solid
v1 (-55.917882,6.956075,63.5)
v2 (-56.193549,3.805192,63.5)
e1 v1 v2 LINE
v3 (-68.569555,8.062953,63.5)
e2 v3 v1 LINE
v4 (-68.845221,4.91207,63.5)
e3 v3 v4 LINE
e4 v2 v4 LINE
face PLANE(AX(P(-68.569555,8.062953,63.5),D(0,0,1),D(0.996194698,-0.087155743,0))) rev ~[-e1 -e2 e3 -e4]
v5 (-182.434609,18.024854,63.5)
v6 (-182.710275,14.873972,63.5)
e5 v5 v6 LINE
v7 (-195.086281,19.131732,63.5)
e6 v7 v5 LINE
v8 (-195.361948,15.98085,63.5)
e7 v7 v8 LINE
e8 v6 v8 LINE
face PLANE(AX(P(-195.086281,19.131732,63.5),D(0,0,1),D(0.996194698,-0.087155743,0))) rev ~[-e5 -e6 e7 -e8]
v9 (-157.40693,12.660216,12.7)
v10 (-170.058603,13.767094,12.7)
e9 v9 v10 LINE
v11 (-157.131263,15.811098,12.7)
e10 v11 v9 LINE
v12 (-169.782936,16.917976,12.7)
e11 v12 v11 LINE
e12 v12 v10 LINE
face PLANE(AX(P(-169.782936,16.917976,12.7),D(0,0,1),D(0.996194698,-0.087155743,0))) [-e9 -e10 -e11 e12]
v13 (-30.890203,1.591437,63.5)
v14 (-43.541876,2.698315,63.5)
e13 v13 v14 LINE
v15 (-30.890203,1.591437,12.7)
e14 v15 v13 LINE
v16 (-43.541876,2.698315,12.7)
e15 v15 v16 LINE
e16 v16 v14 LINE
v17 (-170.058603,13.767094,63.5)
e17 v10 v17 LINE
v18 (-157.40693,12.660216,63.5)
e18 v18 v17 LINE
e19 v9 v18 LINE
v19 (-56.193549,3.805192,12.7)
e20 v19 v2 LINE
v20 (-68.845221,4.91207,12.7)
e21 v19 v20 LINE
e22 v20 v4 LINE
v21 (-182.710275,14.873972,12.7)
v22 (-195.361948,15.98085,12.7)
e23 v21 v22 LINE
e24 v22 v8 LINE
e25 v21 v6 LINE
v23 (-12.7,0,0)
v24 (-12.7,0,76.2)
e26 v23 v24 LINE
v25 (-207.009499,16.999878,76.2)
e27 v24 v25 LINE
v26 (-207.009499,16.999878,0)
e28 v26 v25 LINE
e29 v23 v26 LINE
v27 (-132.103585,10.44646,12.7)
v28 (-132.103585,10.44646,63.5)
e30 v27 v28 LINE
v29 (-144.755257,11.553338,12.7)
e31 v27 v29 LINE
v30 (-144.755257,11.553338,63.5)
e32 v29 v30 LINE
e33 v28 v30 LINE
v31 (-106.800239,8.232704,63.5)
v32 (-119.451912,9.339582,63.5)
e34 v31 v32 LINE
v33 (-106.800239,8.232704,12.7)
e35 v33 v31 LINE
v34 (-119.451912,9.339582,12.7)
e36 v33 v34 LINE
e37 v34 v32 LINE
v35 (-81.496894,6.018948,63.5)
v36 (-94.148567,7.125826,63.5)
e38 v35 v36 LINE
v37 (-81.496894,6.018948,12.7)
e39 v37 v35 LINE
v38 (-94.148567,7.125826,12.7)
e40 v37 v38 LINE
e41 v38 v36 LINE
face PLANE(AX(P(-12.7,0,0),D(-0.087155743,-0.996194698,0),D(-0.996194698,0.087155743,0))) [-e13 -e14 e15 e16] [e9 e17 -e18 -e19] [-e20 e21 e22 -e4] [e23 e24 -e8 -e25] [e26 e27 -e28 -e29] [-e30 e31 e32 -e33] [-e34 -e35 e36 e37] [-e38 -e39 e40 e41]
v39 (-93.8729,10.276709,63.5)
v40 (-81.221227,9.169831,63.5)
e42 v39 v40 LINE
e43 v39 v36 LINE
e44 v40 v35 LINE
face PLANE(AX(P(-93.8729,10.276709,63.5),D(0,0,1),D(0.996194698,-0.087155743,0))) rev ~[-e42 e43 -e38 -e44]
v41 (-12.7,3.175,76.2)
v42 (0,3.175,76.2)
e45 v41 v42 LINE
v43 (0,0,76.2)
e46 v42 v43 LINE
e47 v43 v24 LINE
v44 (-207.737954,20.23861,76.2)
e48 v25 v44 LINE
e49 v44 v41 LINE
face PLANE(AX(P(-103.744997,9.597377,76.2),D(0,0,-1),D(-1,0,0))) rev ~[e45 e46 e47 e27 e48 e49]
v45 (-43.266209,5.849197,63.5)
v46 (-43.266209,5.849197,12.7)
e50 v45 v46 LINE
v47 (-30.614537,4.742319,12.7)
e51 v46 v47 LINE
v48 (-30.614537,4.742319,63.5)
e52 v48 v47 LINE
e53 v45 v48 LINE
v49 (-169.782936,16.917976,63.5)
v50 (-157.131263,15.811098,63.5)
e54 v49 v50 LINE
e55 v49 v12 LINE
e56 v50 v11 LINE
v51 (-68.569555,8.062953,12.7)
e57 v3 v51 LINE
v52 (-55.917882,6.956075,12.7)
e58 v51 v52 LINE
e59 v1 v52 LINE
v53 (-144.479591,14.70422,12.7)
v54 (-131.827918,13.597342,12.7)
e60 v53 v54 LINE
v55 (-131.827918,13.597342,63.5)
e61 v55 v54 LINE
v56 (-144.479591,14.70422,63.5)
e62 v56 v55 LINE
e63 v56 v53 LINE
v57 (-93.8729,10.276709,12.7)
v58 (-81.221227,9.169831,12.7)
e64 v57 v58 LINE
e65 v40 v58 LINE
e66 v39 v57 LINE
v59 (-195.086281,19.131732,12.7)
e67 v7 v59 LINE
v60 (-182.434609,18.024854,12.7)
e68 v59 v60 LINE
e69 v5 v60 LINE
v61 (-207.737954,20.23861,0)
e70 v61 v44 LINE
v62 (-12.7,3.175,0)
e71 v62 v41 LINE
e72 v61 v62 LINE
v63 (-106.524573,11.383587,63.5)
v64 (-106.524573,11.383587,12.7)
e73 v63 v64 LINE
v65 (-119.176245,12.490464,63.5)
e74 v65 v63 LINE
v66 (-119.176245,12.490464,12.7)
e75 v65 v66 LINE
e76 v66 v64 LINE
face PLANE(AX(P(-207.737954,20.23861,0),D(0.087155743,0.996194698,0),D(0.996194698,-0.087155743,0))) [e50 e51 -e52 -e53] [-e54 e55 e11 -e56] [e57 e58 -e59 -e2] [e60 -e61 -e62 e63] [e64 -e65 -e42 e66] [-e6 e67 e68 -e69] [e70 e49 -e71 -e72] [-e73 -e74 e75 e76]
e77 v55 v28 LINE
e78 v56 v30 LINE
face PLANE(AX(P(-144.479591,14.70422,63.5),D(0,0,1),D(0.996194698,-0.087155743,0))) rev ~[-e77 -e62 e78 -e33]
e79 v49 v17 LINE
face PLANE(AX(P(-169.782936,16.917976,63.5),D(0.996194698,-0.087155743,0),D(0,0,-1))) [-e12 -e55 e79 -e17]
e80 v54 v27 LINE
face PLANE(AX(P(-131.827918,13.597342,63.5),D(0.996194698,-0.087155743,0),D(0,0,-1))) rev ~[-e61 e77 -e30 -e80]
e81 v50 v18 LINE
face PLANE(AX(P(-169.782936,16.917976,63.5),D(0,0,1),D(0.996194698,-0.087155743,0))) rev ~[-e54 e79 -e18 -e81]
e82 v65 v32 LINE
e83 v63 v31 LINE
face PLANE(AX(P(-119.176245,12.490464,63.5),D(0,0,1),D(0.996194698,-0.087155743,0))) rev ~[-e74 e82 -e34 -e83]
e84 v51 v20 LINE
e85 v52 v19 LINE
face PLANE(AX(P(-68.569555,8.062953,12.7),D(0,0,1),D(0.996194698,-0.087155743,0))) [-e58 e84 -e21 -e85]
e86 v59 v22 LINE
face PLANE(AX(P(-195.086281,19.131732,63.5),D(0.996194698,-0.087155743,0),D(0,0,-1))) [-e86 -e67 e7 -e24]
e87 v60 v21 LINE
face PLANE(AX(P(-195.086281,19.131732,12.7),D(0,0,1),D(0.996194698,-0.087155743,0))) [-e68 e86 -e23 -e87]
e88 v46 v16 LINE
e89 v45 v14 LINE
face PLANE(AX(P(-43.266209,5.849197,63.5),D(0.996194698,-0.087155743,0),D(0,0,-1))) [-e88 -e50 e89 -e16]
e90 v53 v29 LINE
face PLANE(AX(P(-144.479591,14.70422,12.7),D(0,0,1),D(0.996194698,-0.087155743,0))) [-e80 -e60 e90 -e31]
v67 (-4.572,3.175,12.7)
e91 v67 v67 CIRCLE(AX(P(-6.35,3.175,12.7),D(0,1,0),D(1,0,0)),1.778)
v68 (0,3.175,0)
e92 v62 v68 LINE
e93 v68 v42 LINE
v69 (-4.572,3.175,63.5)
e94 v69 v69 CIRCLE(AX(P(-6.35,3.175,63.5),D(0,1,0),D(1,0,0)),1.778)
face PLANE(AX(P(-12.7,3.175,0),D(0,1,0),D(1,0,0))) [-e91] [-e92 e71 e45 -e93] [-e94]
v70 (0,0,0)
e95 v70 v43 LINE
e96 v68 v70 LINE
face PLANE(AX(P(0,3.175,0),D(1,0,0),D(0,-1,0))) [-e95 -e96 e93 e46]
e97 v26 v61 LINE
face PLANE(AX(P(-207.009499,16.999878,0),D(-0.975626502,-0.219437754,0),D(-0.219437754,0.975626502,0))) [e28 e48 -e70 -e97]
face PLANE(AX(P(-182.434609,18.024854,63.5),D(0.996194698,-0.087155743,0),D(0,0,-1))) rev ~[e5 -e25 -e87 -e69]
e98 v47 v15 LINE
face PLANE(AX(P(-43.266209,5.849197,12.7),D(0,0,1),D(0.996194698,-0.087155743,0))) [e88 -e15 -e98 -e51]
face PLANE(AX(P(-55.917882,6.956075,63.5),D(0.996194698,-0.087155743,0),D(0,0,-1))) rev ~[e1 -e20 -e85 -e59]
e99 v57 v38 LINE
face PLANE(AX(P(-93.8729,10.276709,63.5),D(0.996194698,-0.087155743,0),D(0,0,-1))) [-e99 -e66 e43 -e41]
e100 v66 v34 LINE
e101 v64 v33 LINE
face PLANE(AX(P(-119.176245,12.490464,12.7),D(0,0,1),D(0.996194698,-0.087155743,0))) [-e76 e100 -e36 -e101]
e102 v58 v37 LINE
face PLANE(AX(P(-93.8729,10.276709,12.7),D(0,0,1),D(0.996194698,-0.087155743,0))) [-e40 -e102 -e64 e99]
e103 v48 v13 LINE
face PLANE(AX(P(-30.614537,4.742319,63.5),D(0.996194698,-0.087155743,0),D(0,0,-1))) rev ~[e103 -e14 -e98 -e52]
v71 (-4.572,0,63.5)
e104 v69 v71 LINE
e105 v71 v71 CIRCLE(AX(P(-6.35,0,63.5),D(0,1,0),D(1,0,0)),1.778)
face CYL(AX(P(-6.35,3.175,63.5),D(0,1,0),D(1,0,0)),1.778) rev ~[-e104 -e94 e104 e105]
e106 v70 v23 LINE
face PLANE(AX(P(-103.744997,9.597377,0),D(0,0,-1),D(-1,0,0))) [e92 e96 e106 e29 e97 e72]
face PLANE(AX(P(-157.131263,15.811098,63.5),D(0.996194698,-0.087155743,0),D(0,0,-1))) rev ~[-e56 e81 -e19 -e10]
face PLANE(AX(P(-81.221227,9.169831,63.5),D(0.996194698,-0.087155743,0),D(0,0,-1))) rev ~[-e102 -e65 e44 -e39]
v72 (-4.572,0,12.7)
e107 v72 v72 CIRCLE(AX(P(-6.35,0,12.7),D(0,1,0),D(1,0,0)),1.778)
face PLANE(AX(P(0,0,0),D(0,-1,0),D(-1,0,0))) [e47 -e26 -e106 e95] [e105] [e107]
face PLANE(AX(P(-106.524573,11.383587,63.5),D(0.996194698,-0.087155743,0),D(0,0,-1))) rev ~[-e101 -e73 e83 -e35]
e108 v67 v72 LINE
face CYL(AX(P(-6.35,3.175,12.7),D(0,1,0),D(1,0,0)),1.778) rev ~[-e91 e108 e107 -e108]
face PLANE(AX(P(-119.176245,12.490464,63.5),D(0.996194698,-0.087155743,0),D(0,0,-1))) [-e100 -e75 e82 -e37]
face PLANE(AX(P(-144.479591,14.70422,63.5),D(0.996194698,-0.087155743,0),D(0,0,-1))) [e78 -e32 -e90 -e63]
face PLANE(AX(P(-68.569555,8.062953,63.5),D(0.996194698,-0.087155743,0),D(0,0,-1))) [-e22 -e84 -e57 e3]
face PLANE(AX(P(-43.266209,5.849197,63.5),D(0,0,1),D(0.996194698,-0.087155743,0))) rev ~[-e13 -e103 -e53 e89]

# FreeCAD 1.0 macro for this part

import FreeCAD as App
import Part
import Sketcher
Q = App.Units.Quantity


def add_polygon(sketch, points):
    """Adds a closed chain of lines whose ends are joined by coincident constraints."""
    first, n = sketch.GeometryCount, len(points)
    for a, b in zip(points, points[1:] + points[:1]):
        sketch.addGeometry(Part.LineSegment(App.Vector(*a, 0), App.Vector(*b, 0)), False)
    for i in range(n):
        sketch.addConstraint(Sketcher.Constraint("Coincident", first + i, 2, first + (i + 1) % n, 1))

doc = App.newDocument("Part")
params = doc.addObject("Spreadsheet::Sheet", "Params")
for row, (alias, value) in enumerate([
    ("sketch1_width", "0.5 in"),
    ("sketch1_height", "0.125 in"),
    ("pad1_length", "3 in"),
    ("sketch2_diameter", "0.14 in"),
    ("pocket1_length", "3 in"),
    ("sketch3_height", "2 in"),
    ("sketch3_width", "0.5 in"),
    ("pocket2_length", "3 in"),
    ("linearpattern_pitch", "1 in"),
], start=1):
    params.set(f"A{row}", alias)
    params.set(f"B{row}", "=" + value)
    params.setAlias(f"B{row}", alias)

body = doc.addObject("PartDesign::Body", "Body")

sketch1 = body.newObject("Sketcher::SketchObject", "Sketch")
sketch1.AttachmentSupport = (doc.getObject("XY_Plane"), [""])
sketch1.MapMode = "FlatFace"
add_polygon(sketch1, [(-12.7, 0), (0, 0), (0, 3.2), (-12.7, 3.2), (-207.7, 20.2), (-207, 17)])
sketch1.addConstraint(Sketcher.Constraint("Horizontal", 0))
sketch1.addConstraint(Sketcher.Constraint("Vertical", 1))
sketch1.addConstraint(Sketcher.Constraint("Horizontal", 2))
sketch1.addConstraint(Sketcher.Constraint("Coincident", 0, 2, -1, 1))
sketch1.addConstraint(Sketcher.Constraint("Parallel", 3, 5))
sketch1.addConstraint(Sketcher.Constraint("Vertical", 2, 2, 5, 2))
sketch1.addConstraint(Sketcher.Constraint("DistanceX", 0, 1, 0, 2, Q("0.5 in")))
sketch1.addConstraint(Sketcher.Constraint("Angle", 3, Q("175 deg")))
sketch1.addConstraint(Sketcher.Constraint("DistanceY", 1, 1, 1, 2, Q("0.125 in")))
sketch1.addConstraint(Sketcher.Constraint("DistanceX", 4, 2, -1, 1, Q("207.009499 mm")))
sketch1.addConstraint(Sketcher.Constraint("DistanceY", -1, 1, 3, 2, Q("20.23861 mm")))
sketch1.setExpression("Constraints[12]", "Params.sketch1_width")
sketch1.setExpression("Constraints[14]", "Params.sketch1_height")
pad1 = body.newObject("PartDesign::Pad", "Pad")
pad1.Profile = sketch1
pad1.setExpression("Length", "Params.pad1_length")

sketch2 = body.newObject("Sketcher::SketchObject", "Sketch001")
sketch2.AttachmentSupport = (doc.getObject("XZ_Plane"), [""])
sketch2.MapMode = "FlatFace"
sketch2.AttachmentOffset = App.Placement(App.Vector(0, 0, -0.125 * 25.4), App.Rotation())
sketch2.addGeometry(Part.Circle(App.Vector(-6.3, 12.7, 0), App.Vector(0, 0, 1), 1.8), False)
sketch2.addGeometry(Part.Circle(App.Vector(-6.3, 63.5, 0), App.Vector(0, 0, 1), 1.8), False)
sketch2.addConstraint(Sketcher.Constraint("Equal", 0, 1))
sketch2.addConstraint(Sketcher.Constraint("Vertical", 0, 3, 1, 3))
sketch2.addConstraint(Sketcher.Constraint("Diameter", 0, Q("0.14 in")))
sketch2.addConstraint(Sketcher.Constraint("DistanceY", 0, 3, 1, 3, Q("2 in")))
sketch2.addConstraint(Sketcher.Constraint("DistanceY", -1, 1, 0, 3, Q("0.5 in")))
sketch2.addConstraint(Sketcher.Constraint("DistanceX", 0, 3, -1, 1, Q("0.25 in")))
sketch2.setExpression("Constraints[2]", "Params.sketch2_diameter")
pocket1 = body.newObject("PartDesign::Pocket", "Pocket")
pocket1.Profile = sketch2
pocket1.setExpression("Length", "Params.pocket1_length")
pocket1.Reversed = True

sketch3 = body.newObject("Sketcher::SketchObject", "Sketch002")
sketch3.Placement = App.Placement(App.Vector(0.179196, 2.048216, 0), App.Rotation(App.Vector(0.996194698, -0.087155743, 0), App.Vector(0, 0, -1), App.Vector(0.087155743, 0.996194698, 0), "ZXY"))
add_polygon(sketch3, [(-196, -13), (-196, -63), (-183, -63), (-183, -13)])
sketch3.addConstraint(Sketcher.Constraint("Vertical", 0))
sketch3.addConstraint(Sketcher.Constraint("Horizontal", 1))
sketch3.addConstraint(Sketcher.Constraint("Vertical", 2))
sketch3.addConstraint(Sketcher.Constraint("Horizontal", 3))
sketch3.addConstraint(Sketcher.Constraint("DistanceY", 0, 2, 0, 1, Q("2 in")))
sketch3.addConstraint(Sketcher.Constraint("DistanceX", 1, 1, 1, 2, Q("0.5 in")))
sketch3.addConstraint(Sketcher.Constraint("DistanceY", 0, 2, -1, 1, Q("2.5 in")))
sketch3.addConstraint(Sketcher.Constraint("DistanceX", 0, 2, -1, 1, Q("196.011359 mm")))
sketch3.setExpression("Constraints[8]", "Params.sketch3_height")
sketch3.setExpression("Constraints[9]", "Params.sketch3_width")
pocket2 = body.newObject("PartDesign::Pocket", "Pocket001")
pocket2.Profile = sketch3
pocket2.setExpression("Length", "Params.pocket2_length")
doc.recompute()

datumline = body.newObject("PartDesign::Line", "DatumLine")
datumline.Placement = App.Placement(App.Vector(0, 0, 0), App.Rotation(App.Vector(0, 0, 1), App.Vector(0.996194698, -0.087155743, 0)))
linearpattern = body.newObject("PartDesign::LinearPattern", "LinearPattern")
linearpattern.Originals = [pocket2]
linearpattern.Direction = (datumline, [""])
linearpattern.Mode = "offset"
linearpattern.setExpression("Offset", "Params.linearpattern_pitch")
linearpattern.Occurrences = 7
body.Tip = linearpattern

doc.recompute()
